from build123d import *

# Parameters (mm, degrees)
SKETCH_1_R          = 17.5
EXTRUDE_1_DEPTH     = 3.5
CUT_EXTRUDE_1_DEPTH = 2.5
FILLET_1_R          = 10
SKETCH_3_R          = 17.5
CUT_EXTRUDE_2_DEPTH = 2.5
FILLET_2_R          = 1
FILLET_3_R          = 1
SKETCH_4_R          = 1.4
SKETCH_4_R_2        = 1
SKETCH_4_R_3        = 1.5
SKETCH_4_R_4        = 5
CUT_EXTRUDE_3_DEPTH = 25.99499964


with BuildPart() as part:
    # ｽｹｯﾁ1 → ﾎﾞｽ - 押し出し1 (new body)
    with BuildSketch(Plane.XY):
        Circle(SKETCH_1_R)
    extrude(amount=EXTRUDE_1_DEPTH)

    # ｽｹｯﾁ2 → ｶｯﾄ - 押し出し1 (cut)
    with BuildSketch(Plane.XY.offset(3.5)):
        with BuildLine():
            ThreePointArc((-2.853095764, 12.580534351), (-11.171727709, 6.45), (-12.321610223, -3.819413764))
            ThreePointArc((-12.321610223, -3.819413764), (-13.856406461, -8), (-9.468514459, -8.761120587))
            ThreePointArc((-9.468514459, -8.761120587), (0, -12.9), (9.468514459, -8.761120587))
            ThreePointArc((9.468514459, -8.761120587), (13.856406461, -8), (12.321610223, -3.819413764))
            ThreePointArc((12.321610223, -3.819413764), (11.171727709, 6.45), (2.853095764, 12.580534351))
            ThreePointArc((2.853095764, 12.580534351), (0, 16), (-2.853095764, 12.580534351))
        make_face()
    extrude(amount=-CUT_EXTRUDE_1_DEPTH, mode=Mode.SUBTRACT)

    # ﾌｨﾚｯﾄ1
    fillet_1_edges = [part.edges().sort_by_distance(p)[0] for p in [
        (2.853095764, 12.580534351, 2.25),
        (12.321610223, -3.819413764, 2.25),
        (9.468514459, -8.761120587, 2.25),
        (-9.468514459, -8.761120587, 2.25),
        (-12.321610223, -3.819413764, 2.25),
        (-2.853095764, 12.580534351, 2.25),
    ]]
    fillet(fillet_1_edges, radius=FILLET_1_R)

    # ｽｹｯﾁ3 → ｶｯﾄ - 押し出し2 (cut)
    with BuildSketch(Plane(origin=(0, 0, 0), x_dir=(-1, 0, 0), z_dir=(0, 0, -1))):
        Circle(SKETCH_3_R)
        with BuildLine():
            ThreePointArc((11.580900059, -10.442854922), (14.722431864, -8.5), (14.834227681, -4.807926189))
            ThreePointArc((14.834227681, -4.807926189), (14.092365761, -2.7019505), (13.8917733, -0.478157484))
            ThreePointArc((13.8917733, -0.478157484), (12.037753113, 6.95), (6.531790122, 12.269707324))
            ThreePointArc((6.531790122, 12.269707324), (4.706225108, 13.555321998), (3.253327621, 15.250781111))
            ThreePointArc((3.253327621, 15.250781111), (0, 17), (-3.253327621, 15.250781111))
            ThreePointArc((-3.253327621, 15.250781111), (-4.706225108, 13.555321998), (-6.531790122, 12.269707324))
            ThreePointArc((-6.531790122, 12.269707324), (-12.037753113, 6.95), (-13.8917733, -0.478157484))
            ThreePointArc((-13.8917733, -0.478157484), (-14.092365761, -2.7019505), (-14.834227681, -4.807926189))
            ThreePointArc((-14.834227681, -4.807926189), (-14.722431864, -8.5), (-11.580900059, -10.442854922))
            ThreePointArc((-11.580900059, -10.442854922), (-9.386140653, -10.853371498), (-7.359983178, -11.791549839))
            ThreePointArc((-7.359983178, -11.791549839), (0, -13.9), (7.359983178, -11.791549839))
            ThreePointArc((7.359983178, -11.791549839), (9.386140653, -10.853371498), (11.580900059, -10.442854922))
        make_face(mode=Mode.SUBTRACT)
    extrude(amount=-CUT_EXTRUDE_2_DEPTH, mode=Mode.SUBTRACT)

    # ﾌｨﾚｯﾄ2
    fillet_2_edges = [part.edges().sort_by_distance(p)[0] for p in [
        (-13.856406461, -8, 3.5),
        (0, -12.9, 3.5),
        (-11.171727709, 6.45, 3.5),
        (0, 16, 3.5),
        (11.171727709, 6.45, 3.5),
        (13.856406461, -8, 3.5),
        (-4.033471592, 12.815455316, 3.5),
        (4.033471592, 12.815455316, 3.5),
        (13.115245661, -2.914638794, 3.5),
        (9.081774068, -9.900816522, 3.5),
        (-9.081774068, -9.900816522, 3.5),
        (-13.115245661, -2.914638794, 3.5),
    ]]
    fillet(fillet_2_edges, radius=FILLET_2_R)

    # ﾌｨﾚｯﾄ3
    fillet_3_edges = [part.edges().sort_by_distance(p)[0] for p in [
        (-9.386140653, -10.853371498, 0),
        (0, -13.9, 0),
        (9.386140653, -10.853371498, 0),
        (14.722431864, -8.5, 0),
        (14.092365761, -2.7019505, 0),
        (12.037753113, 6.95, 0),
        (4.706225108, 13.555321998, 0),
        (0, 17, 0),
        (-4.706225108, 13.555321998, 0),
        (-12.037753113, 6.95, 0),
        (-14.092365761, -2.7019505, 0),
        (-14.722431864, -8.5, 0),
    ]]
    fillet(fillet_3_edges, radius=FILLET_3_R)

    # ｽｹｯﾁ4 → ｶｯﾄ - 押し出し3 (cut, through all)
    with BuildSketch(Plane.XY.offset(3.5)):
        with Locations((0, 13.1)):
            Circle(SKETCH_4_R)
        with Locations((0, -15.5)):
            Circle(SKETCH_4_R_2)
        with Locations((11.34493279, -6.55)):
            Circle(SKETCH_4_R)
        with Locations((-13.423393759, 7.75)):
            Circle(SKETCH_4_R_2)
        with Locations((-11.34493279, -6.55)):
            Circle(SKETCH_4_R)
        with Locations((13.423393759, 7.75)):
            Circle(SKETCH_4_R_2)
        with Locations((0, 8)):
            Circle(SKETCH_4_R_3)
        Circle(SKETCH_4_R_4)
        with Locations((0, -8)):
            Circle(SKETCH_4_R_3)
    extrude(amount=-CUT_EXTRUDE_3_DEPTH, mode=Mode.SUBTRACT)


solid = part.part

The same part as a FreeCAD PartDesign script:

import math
import FreeCAD as App
import Part
import Sketcher

V = App.Vector


def edges_at(feature, points):
    """Names of the edges that pass closest to the given points."""
    edges = feature.Shape.Edges
    near = lambda p: min(range(len(edges)), key=lambda i: edges[i].distToShape(Part.Vertex(*p))[0])
    return sorted({f"Edge{near(p) + 1}" for p in points})

doc = App.newDocument("Part")
body = doc.addObject("PartDesign::Body", "Body")

sketch1 = body.newObject("Sketcher::SketchObject", "Sketch")
sketch1.AttachmentSupport = (doc.getObject("XY_Plane"), [""])
sketch1.MapMode = "FlatFace"
sketch1.addGeometry(Part.Circle(V(0, 0, 0), V(0, 0, 1), 18), False)
sketch1.addConstraint([
    Sketcher.Constraint("Coincident", 0, 3, -1, 1),
    Sketcher.Constraint("Diameter", 0, 35.0),
])
pad1 = body.newObject("PartDesign::Pad", "Pad")
pad1.Profile = sketch1
pad1.Length = 3.5

sketch2 = body.newObject("Sketcher::SketchObject", "Sketch001")
sketch2.AttachmentSupport = (doc.getObject("XY_Plane"), [""])
sketch2.MapMode = "FlatFace"
sketch2.AttachmentOffset = App.Placement(V(0, 0, 3.5), App.Rotation())
sketch2.addGeometry([
    Part.ArcOfCircle(Part.Circle(V(0, 0, 0), V(0, 0, 1), 12.9), math.radians(103), math.radians(197)),
    Part.ArcOfCircle(Part.Circle(V(-11.3, -6.5, 0), V(0, 0, 1), 2.9), math.radians(110), math.radians(310)),
    Part.ArcOfCircle(Part.Circle(V(0, 0, 0), V(0, 0, 1), 12.9), math.radians(-137), math.radians(-43)),
    Part.ArcOfCircle(Part.Circle(V(11.3, -6.5, 0), V(0, 0, 1), 2.9), math.radians(-130), math.radians(70)),
    Part.ArcOfCircle(Part.Circle(V(0, 0, 0), V(0, 0, 1), 12.9), math.radians(-17), math.radians(77)),
    Part.ArcOfCircle(Part.Circle(V(0, 13.1, 0), V(0, 0, 1), 2.9), math.radians(-10), math.radians(190)),
], False)
sketch2.addConstraint([
    Sketcher.Constraint("Coincident", 0, 2, 1, 1),
    Sketcher.Constraint("Coincident", 1, 2, 2, 1),
    Sketcher.Constraint("Coincident", 2, 2, 3, 1),
    Sketcher.Constraint("Coincident", 3, 2, 4, 1),
    Sketcher.Constraint("Coincident", 4, 2, 5, 1),
    Sketcher.Constraint("Coincident", 5, 2, 0, 1),
    Sketcher.Constraint("Coincident", 0, 3, -1, 1),
    Sketcher.Constraint("Coincident", 2, 3, -1, 1),
    Sketcher.Constraint("Coincident", 4, 3, -1, 1),
    Sketcher.Constraint("Equal", 0, 2),
    Sketcher.Constraint("Equal", 1, 3),
    Sketcher.Constraint("Equal", 2, 4),
    Sketcher.Constraint("Equal", 3, 5),
    Sketcher.Constraint("Symmetric", 1, 3, 3, 3, -2),
    Sketcher.Constraint("PointOnObject", 5, 3, -2),
    Sketcher.Constraint("Radius", 0, 12.9),
    Sketcher.Constraint("Radius", 1, 2.9),
    Sketcher.Constraint("DistanceY", -1, 1, 5, 3, 13.1),
    Sketcher.Constraint("DistanceY", 1, 3, -1, 1, 6.55),
    Sketcher.Constraint("DistanceX", 0, 2, -1, 1, 12.32161),
])
pocket1 = body.newObject("PartDesign::Pocket", "Pocket")
pocket1.Profile = sketch2
pocket1.Length = 2.5
doc.recompute()

fillet = body.newObject("PartDesign::Fillet", "Fillet")
fillet.Base = (pocket1, edges_at(pocket1, [
    (2.853, 12.581, 2.25),
    (12.322, -3.819, 2.25),
    (9.469, -8.761, 2.25),
    (-9.469, -8.761, 2.25),
    (-12.322, -3.819, 2.25),
    (-2.853, 12.581, 2.25),
]))
fillet.Radius = 10

sketch3 = body.newObject("Sketcher::SketchObject", "Sketch002")
sketch3.AttachmentSupport = (doc.getObject("XY_Plane"), [""])
sketch3.MapMode = "FlatFace"
sketch3.addGeometry([
    Part.Circle(V(0, 0, 0), V(0, 0, 1), 17.5),
    Part.ArcOfCircle(Part.Circle(V(-11.3, -6.5, 0), V(0, 0, 1), 3.9), math.radians(153), math.radians(267)),
    Part.ArcOfCircle(Part.Circle(V(-12.1, -19.4, 0), V(0, 0, 1), 9), math.radians(58), math.radians(87)),
    Part.ArcOfCircle(Part.Circle(V(0, 0, 0), V(0, 0, 1), 13.9), math.radians(-122), math.radians(-58)),
    Part.ArcOfCircle(Part.Circle(V(12.1, -19.4, 0), V(0, 0, 1), 9), math.radians(93), math.radians(122)),
    Part.ArcOfCircle(Part.Circle(V(11.3, -6.5, 0), V(0, 0, 1), 3.9), math.radians(-87), math.radians(27)),
    Part.ArcOfCircle(Part.Circle(V(22.9, -0.8, 0), V(0, 0, 1), 9), math.radians(178), math.radians(207)),
    Part.ArcOfCircle(Part.Circle(V(0, 0, 0), V(0, 0, 1), 13.9), math.radians(-2), math.radians(62)),
    Part.ArcOfCircle(Part.Circle(V(10.8, 20.2, 0), V(0, 0, 1), 9), math.radians(-147), math.radians(-118)),
    Part.ArcOfCircle(Part.Circle(V(0, 13.1, 0), V(0, 0, 1), 3.9), math.radians(33), math.radians(147)),
    Part.ArcOfCircle(Part.Circle(V(-10.8, 20.2, 0), V(0, 0, 1), 9), math.radians(-62), math.radians(-33)),
    Part.ArcOfCircle(Part.Circle(V(0, 0, 0), V(0, 0, 1), 13.9), math.radians(118), math.radians(182)),
    Part.ArcOfCircle(Part.Circle(V(-22.9, -0.8, 0), V(0, 0, 1), 9), math.radians(-27), math.radians(2)),
], False)
sketch3.addConstraint([
    Sketcher.Constraint("Tangent", 1, 2, 2, 2),
    Sketcher.Constraint("Tangent", 2, 1, 3, 1),
    Sketcher.Constraint("Tangent", 3, 2, 4, 2),
    Sketcher.Constraint("Tangent", 4, 1, 5, 1),
    Sketcher.Constraint("Tangent", 5, 2, 6, 2),
    Sketcher.Constraint("Tangent", 6, 1, 7, 1),
    Sketcher.Constraint("Tangent", 7, 2, 8, 2),
    Sketcher.Constraint("Tangent", 8, 1, 9, 1),
    Sketcher.Constraint("Tangent", 9, 2, 10, 2),
    Sketcher.Constraint("Tangent", 10, 1, 11, 1),
    Sketcher.Constraint("Tangent", 11, 2, 12, 2),
    Sketcher.Constraint("Tangent", 12, 1, 1, 1),
    Sketcher.Constraint("Coincident", 0, 3, -1, 1),
    Sketcher.Constraint("Coincident", 3, 3, -1, 1),
    Sketcher.Constraint("Coincident", 7, 3, -1, 1),
    Sketcher.Constraint("Coincident", 11, 3, -1, 1),
    Sketcher.Constraint("Equal", 2, 4),
    Sketcher.Constraint("Equal", 1, 5),
    Sketcher.Constraint("Equal", 4, 6),
    Sketcher.Constraint("Equal", 3, 7),
    Sketcher.Constraint("Equal", 6, 8),
    Sketcher.Constraint("Equal", 5, 9),
    Sketcher.Constraint("Equal", 8, 10),
    Sketcher.Constraint("Equal", 7, 11),
    Sketcher.Constraint("Equal", 10, 12),
    Sketcher.Constraint("Symmetric", 1, 3, 5, 3, -2),
    Sketcher.Constraint("PointOnObject", 9, 3, -2),
    Sketcher.Constraint("Diameter", 0, 35.0),
    Sketcher.Constraint("Radius", 2, 9.0),
    Sketcher.Constraint("Radius", 1, 3.9),
    Sketcher.Constraint("Radius", 3, 13.9),
    Sketcher.Constraint("DistanceY", -1, 1, 9, 3, 13.1),
    Sketcher.Constraint("DistanceY", 1, 3, -1, 1, 6.55),
    Sketcher.Constraint("DistanceX", 1, 2, -1, 1, 11.5809),
])
pocket2 = body.newObject("PartDesign::Pocket", "Pocket001")
pocket2.Profile = sketch3
pocket2.Length = 2.5
pocket2.Reversed = True
doc.recompute()

fillet2 = body.newObject("PartDesign::Fillet", "Fillet001")
fillet2.Base = (pocket2, edges_at(pocket2, [
    (-13.856, -8, 3.5),
    (0, -12.9, 3.5),
    (-11.172, 6.45, 3.5),
    (0, 16, 3.5),
    (11.172, 6.45, 3.5),
    (13.856, -8, 3.5),
    (-4.033, 12.815, 3.5),
    (4.033, 12.815, 3.5),
    (13.115, -2.915, 3.5),
    (9.082, -9.901, 3.5),
    (-9.082, -9.901, 3.5),
    (-13.115, -2.915, 3.5),
]))
fillet2.Radius = 1
doc.recompute()

fillet3 = body.newObject("PartDesign::Fillet", "Fillet002")
fillet3.Base = (fillet2, edges_at(fillet2, [
    (-9.386, -10.853, 0),
    (0, -13.9, 0),
    (9.386, -10.853, 0),
    (14.722, -8.5, 0),
    (14.092, -2.702, 0),
    (12.038, 6.95, 0),
    (4.706, 13.555, 0),
    (0, 17, 0),
    (-4.706, 13.555, 0),
    (-12.038, 6.95, 0),
    (-14.092, -2.702, 0),
    (-14.722, -8.5, 0),
]))
fillet3.Radius = 1

sketch4 = body.newObject("Sketcher::SketchObject", "Sketch003")
sketch4.AttachmentSupport = (doc.getObject("XY_Plane"), [""])
sketch4.MapMode = "FlatFace"
sketch4.AttachmentOffset = App.Placement(V(0, 0, 3.5), App.Rotation())
sketch4.addGeometry([
    Part.Circle(V(0, 13.1, 0), V(0, 0, 1), 1.4),
    Part.Circle(V(0, -15.5, 0), V(0, 0, 1), 1),
    Part.Circle(V(11.3, -6.5, 0), V(0, 0, 1), 1.4),
    Part.Circle(V(-13.4, 7.8, 0), V(0, 0, 1), 1),
    Part.Circle(V(-11.3, -6.5, 0), V(0, 0, 1), 1.4),
    Part.Circle(V(13.4, 7.8, 0), V(0, 0, 1), 1),
    Part.Circle(V(0, 8, 0), V(0, 0, 1), 1.5),
    Part.Circle(V(0, 0, 0), V(0, 0, 1), 5),
    Part.Circle(V(0, -8, 0), V(0, 0, 1), 1.5),
], False)
sketch4.addConstraint([
    Sketcher.Constraint("Coincident", 7, 3, -1, 1),
    Sketcher.Constraint("Equal", 0, 2),
    Sketcher.Constraint("Equal", 1, 3),
    Sketcher.Constraint("Equal", 2, 4),
    Sketcher.Constraint("Equal", 3, 5),
    Sketcher.Constraint("Equal", 6, 8),
    Sketcher.Constraint("Symmetric", 6, 3, 8, 3, -1, 1),
    Sketcher.Constraint("Symmetric", 2, 3, 4, 3, -2),
    Sketcher.Constraint("Symmetric", 3, 3, 5, 3, -2),
    Sketcher.Constraint("PointOnObject", 0, 3, -2),
    Sketcher.Constraint("PointOnObject", 1, 3, -2),
    Sketcher.Constraint("PointOnObject", 6, 3, -2),
    Sketcher.Constraint("Diameter", 1, 2.0),
    Sketcher.Constraint("Diameter", 6, 3.0),
    Sketcher.Constraint("Diameter", 7, 10.0),
    Sketcher.Constraint("Diameter", 0, 2.8),
    Sketcher.Constraint("DistanceY", -1, 1, 6, 3, 8.0),
    Sketcher.Constraint("DistanceY", -1, 1, 0, 3, 13.1),
    Sketcher.Constraint("DistanceY", 1, 3, -1, 1, 15.5),
    Sketcher.Constraint("DistanceY", 2, 3, 3, 3, 14.3),
    Sketcher.Constraint("DistanceY", 2, 3, -1, 1, 6.55),
    Sketcher.Constraint("DistanceX", 3, 3, 4, 3, 2.078461),
    Sketcher.Constraint("DistanceX", -1, 1, 2, 3, 11.344933),
])
pocket3 = body.newObject("PartDesign::Pocket", "Pocket002")
pocket3.Profile = sketch4
pocket3.Type = "ThroughAll"

doc.recompute()
